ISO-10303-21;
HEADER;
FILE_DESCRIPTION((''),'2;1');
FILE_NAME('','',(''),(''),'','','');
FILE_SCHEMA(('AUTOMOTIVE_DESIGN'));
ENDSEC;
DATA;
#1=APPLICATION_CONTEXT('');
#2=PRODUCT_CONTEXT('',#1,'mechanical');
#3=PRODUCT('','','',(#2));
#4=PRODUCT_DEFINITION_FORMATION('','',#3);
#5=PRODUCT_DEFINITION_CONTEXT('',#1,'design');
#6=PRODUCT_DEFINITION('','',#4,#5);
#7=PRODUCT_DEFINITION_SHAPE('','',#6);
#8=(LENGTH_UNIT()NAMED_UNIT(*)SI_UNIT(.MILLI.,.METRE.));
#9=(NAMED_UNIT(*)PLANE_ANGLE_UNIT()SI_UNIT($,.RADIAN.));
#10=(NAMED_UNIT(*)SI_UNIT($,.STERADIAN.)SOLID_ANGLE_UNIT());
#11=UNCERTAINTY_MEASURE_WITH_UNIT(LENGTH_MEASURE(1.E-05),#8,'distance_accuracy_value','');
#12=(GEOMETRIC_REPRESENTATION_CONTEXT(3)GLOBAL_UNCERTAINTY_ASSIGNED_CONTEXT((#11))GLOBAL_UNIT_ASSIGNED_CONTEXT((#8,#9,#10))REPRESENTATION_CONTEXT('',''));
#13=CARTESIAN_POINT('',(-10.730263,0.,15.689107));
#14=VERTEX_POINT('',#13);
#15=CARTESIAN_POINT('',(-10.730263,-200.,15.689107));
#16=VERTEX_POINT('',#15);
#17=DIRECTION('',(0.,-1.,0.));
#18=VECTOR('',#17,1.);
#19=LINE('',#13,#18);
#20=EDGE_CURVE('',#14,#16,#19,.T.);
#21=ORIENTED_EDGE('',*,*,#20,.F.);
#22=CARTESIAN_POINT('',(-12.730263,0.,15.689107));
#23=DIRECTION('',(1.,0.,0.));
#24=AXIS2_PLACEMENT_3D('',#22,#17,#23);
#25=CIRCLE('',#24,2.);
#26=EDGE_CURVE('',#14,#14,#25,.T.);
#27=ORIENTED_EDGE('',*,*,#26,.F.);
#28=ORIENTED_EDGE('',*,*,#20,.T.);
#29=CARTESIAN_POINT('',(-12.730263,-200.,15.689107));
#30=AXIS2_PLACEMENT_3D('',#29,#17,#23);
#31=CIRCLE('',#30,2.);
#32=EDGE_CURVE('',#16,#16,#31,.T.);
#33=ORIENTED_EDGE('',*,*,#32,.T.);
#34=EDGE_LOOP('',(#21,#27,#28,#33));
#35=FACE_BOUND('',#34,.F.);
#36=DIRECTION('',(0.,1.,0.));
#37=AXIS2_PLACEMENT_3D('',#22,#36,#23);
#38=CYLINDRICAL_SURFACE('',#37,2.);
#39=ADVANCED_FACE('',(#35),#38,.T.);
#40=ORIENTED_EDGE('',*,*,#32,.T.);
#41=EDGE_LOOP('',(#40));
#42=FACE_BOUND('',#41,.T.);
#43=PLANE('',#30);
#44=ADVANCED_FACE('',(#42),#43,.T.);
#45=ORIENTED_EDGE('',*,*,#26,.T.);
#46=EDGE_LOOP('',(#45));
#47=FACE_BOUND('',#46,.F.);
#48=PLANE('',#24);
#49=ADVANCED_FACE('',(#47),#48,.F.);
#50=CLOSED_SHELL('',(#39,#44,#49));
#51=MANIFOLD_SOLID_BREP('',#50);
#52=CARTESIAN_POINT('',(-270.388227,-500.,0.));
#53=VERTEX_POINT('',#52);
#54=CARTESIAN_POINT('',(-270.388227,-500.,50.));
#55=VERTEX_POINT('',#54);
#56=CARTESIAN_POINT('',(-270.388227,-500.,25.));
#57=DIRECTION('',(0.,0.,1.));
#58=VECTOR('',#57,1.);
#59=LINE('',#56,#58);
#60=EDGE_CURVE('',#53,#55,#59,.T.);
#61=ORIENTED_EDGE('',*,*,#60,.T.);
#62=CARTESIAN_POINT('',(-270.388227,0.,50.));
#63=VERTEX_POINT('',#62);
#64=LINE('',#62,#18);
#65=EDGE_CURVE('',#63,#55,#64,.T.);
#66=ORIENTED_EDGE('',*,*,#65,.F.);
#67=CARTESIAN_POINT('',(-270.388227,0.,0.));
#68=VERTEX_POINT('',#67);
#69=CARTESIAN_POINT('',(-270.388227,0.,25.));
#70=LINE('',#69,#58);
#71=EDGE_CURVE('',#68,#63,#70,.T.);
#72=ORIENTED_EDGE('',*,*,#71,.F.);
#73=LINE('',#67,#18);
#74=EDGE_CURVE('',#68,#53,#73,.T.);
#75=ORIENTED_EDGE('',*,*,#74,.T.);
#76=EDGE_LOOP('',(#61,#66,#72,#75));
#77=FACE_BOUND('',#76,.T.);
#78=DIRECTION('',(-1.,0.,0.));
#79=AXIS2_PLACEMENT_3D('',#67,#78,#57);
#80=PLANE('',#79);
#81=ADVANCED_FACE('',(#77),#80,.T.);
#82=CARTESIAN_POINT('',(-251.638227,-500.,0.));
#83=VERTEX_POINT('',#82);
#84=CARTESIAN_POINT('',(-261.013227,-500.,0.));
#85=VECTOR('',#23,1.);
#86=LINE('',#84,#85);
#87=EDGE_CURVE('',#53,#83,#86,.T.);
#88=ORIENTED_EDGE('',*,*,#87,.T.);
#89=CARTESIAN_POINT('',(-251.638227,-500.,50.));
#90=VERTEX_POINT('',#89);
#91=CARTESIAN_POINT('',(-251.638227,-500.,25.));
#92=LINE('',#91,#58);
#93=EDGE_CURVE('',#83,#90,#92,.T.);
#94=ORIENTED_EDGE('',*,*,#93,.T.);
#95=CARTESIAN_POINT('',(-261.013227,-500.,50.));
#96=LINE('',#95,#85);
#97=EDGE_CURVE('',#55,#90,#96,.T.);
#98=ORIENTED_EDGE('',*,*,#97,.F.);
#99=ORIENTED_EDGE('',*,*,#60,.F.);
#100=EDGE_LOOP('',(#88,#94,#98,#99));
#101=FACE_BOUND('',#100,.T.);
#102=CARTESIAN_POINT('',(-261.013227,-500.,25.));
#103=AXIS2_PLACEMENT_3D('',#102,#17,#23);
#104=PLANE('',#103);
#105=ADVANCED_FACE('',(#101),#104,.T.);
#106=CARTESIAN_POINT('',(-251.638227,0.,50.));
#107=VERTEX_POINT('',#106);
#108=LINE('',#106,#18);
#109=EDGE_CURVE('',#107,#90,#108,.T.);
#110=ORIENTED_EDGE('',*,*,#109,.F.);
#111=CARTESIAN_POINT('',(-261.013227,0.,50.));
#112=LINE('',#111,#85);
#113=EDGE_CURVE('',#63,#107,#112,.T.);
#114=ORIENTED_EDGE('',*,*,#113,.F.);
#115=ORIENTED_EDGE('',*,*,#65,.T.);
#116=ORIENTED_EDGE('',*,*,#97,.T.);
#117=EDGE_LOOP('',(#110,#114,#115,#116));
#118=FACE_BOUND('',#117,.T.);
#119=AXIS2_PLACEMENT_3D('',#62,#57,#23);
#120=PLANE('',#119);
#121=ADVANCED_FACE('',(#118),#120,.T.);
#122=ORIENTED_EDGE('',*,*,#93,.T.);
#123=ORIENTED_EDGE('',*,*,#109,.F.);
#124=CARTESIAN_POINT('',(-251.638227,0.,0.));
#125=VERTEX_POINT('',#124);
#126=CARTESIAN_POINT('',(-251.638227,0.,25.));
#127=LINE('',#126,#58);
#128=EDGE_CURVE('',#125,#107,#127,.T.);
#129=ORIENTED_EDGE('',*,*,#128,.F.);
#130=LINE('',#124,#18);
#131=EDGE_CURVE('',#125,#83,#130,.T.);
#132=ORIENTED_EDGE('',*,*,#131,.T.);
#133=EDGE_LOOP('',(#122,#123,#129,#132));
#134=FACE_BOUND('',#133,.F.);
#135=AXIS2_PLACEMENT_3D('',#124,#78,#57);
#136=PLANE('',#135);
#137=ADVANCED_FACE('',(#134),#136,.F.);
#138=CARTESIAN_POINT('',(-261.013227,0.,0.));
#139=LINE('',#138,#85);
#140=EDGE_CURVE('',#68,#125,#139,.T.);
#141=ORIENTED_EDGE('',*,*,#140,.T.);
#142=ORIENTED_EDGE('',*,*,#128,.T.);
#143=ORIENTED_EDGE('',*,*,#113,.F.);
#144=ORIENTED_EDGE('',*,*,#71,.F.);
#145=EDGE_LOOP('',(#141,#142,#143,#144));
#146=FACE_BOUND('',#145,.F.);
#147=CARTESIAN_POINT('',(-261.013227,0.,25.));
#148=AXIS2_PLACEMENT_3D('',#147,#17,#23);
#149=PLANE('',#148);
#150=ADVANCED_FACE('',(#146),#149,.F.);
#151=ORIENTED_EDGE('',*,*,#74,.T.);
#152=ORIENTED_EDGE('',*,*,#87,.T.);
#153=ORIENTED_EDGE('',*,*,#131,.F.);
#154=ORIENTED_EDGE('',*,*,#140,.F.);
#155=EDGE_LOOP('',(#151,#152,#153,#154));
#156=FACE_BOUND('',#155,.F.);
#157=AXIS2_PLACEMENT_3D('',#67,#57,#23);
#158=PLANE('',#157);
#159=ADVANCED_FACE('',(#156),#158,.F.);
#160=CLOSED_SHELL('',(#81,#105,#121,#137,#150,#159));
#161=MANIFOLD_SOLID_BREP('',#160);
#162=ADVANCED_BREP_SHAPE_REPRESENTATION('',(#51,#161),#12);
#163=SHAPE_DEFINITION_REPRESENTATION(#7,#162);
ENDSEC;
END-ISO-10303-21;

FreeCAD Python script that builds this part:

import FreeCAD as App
import Part
import Sketcher

doc = App.newDocument("Part")
body = doc.addObject("PartDesign::Body", "Body")

# Sketch on XZ plane
sketch1 = doc.addObject("Sketcher::SketchObject", "Sketch")
body.addObject(sketch1)
sketch1.AttachmentSupport = (doc.XZ_Plane, [""])
sketch1.MapMode = "FlatFace"
sketch1.addGeometry(Part.Circle(App.Vector(-12.7, 15.7, 0), App.Vector(0, 0, 1), 2), False)
sketch1.addConstraint([
    Sketcher.Constraint("Diameter", 0, 4.0),
    Sketcher.Constraint("DistanceX", 0, 3, -1, 1, 12.730263),
    Sketcher.Constraint("DistanceY", -1, 1, 0, 3, 15.689107),
])
pad1 = doc.addObject("PartDesign::Pad", "Pad")
body.addObject(pad1)
pad1.Profile = sketch1
pad1.Length = 200
body2 = doc.addObject("PartDesign::Body", "Body001")

# Sketch on XZ plane
sketch2 = doc.addObject("Sketcher::SketchObject", "Sketch001")
body2.addObject(sketch2)
sketch2.AttachmentSupport = (doc.getObject("XZ_Plane001"), [""])
sketch2.MapMode = "FlatFace"
sketch2.addGeometry([
    Part.LineSegment(App.Vector(-270, 50, 0), App.Vector(-270, 0, 0)),
    Part.LineSegment(App.Vector(-270, 0, 0), App.Vector(-252, 0, 0)),
    Part.LineSegment(App.Vector(-252, 0, 0), App.Vector(-252, 50, 0)),
    Part.LineSegment(App.Vector(-252, 50, 0), App.Vector(-270, 50, 0)),
], False)
sketch2.addConstraint([
    Sketcher.Constraint("Coincident", 0, 2, 1, 1),
    Sketcher.Constraint("Coincident", 1, 2, 2, 1),
    Sketcher.Constraint("Coincident", 2, 2, 3, 1),
    Sketcher.Constraint("Coincident", 3, 2, 0, 1),
    Sketcher.Constraint("Vertical", 0),
    Sketcher.Constraint("Horizontal", 1),
    Sketcher.Constraint("Vertical", 2),
    Sketcher.Constraint("Horizontal", 3),
    Sketcher.Constraint("PointOnObject", 0, 2, -1),
    Sketcher.Constraint("DistanceY", 0, 2, 0, 1, 50.0),
    Sketcher.Constraint("DistanceX", 1, 1, 1, 2, 18.75),
    Sketcher.Constraint("DistanceX", 0, 2, -1, 1, 270.388227),
])
pad2 = doc.addObject("PartDesign::Pad", "Pad001")
body2.addObject(pad2)
pad2.Profile = sketch2
pad2.Length = 500

doc.recompute()
